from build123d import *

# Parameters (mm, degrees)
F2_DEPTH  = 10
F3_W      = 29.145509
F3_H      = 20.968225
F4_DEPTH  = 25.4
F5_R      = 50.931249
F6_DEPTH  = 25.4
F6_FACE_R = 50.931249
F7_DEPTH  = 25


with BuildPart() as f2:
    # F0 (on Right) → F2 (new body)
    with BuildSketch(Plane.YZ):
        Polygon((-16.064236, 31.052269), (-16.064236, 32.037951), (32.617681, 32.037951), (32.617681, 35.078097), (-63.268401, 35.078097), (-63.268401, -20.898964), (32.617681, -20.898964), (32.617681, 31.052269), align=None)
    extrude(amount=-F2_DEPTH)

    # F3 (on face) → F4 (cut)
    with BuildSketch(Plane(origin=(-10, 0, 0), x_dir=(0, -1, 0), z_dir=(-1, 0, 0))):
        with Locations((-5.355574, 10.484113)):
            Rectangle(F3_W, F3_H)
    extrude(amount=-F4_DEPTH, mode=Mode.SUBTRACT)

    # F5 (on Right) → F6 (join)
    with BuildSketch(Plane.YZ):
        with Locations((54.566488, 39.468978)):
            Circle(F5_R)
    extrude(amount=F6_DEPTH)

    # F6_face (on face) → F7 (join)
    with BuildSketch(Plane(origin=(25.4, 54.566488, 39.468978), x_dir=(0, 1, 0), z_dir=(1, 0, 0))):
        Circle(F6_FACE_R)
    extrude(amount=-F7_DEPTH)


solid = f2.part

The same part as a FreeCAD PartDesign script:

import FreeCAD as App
import Part
import Sketcher
Q = App.Units.Quantity

doc = App.newDocument("Part")
body = doc.addObject("PartDesign::Body", "Body")

# Sketch on YZ plane
sketch1 = body.newObject("Sketcher::SketchObject", "Sketch")
sketch1.AttachmentSupport = (doc.getObject("YZ_Plane"), [""])
sketch1.MapMode = "FlatFace"
sketch1.addGeometry([
    Part.LineSegment(App.Vector(-16.064236, 31.052269, 0), App.Vector(-16.064236, 32.037951, 0)),  # 0
    Part.LineSegment(App.Vector(-16.064236, 32.037951, 0), App.Vector(32.617681, 32.037951, 0)),  # 1
    Part.LineSegment(App.Vector(32.617681, 32.037951, 0), App.Vector(32.617681, 35.078097, 0)),  # 2
    Part.LineSegment(App.Vector(32.617681, 35.078097, 0), App.Vector(-63.268401, 35.078097, 0)),  # 3
    Part.LineSegment(App.Vector(-63.268401, 35.078097, 0), App.Vector(-63.268401, -20.898964, 0)),  # 4
    Part.LineSegment(App.Vector(-63.268401, -20.898964, 0), App.Vector(32.617681, -20.898964, 0)),  # 5
    Part.LineSegment(App.Vector(32.617681, -20.898964, 0), App.Vector(32.617681, 31.052269, 0)),  # 6
    Part.LineSegment(App.Vector(32.617681, 31.052269, 0), App.Vector(-16.064236, 31.052269, 0)),  # 7
], False)
sketch1.addConstraint([
    Sketcher.Constraint("Coincident", 0, 2, 1, 1),
    Sketcher.Constraint("Coincident", 1, 2, 2, 1),
    Sketcher.Constraint("Coincident", 2, 2, 3, 1),
    Sketcher.Constraint("Coincident", 3, 2, 4, 1),
    Sketcher.Constraint("Coincident", 4, 2, 5, 1),
    Sketcher.Constraint("Coincident", 5, 2, 6, 1),
    Sketcher.Constraint("Coincident", 6, 2, 7, 1),
    Sketcher.Constraint("Coincident", 7, 2, 0, 1),
    Sketcher.Constraint("Vertical", 0),
    Sketcher.Constraint("Horizontal", 1),
    Sketcher.Constraint("Vertical", 2),
    Sketcher.Constraint("Horizontal", 3),
    Sketcher.Constraint("Vertical", 4),
    Sketcher.Constraint("Horizontal", 5),
    Sketcher.Constraint("Vertical", 6),
    Sketcher.Constraint("Horizontal", 7),
    Sketcher.Constraint("Vertical", 2, 2, 5, 2),
    Sketcher.Constraint("DistanceX", 3, 2, 3, 1, Q("95.886082 mm")),
    Sketcher.Constraint("DistanceY", 4, 2, 4, 1, Q("55.977061 mm")),
    Sketcher.Constraint("DistanceX", 3, 2, -1, 1, Q("63.268401 mm")),
    Sketcher.Constraint("DistanceX", 1, 1, 1, 2, Q("48.681917 mm")),
    Sketcher.Constraint("DistanceY", 0, 1, 0, 2, Q("0.985682 mm")),
    Sketcher.Constraint("DistanceY", 2, 1, 2, 2, Q("3.040146 mm")),
    Sketcher.Constraint("DistanceY", -1, 1, 0, 2, Q("32.037951 mm")),
])
pad1 = body.newObject("PartDesign::Pad", "Pad")
pad1.Profile = sketch1
pad1.Length = 10
pad1.Reversed = True

# Sketch on YZ plane
sketch2 = body.newObject("Sketcher::SketchObject", "Sketch001")
sketch2.AttachmentSupport = (doc.getObject("YZ_Plane"), [""])
sketch2.MapMode = "FlatFace"
sketch2.AttachmentOffset = App.Placement(App.Vector(0, 0, -10), App.Rotation())
sketch2.addGeometry([
    Part.LineSegment(App.Vector(19.928328, 20.968225, 0), App.Vector(19.928328, 0, 0)),
    Part.LineSegment(App.Vector(19.928328, 0, 0), App.Vector(-9.21718, 0, 0)),
    Part.LineSegment(App.Vector(-9.21718, 0, 0), App.Vector(-9.21718, 20.968225, 0)),
    Part.LineSegment(App.Vector(-9.21718, 20.968225, 0), App.Vector(19.928328, 20.968225, 0)),
], False)
sketch2.addConstraint([
    Sketcher.Constraint("Coincident", 0, 2, 1, 1),
    Sketcher.Constraint("Coincident", 1, 2, 2, 1),
    Sketcher.Constraint("Coincident", 2, 2, 3, 1),
    Sketcher.Constraint("Coincident", 3, 2, 0, 1),
    Sketcher.Constraint("Vertical", 0),
    Sketcher.Constraint("Horizontal", 1),
    Sketcher.Constraint("Vertical", 2),
    Sketcher.Constraint("Horizontal", 3),
    Sketcher.Constraint("PointOnObject", 0, 2, -1),
    Sketcher.Constraint("DistanceX", 1, 2, 1, 1, Q("29.145509 mm")),
    Sketcher.Constraint("DistanceY", 0, 2, 0, 1, Q("20.968225 mm")),
    Sketcher.Constraint("DistanceX", -1, 1, 0, 2, Q("19.928328 mm")),
])
pocket1 = body.newObject("PartDesign::Pocket", "Pocket")
pocket1.Profile = sketch2
pocket1.Length = 25.4
pocket1.Reversed = True

# Sketch on YZ plane
sketch3 = body.newObject("Sketcher::SketchObject", "Sketch002")
sketch3.AttachmentSupport = (doc.getObject("YZ_Plane"), [""])
sketch3.MapMode = "FlatFace"
sketch3.addGeometry(Part.Circle(App.Vector(54.566488, 39.468978, 0), App.Vector(0, 0, 1), 50.931249), False)
sketch3.addConstraint([
    Sketcher.Constraint("Diameter", 0, Q("101.862498 mm")),
    Sketcher.Constraint("DistanceX", -1, 1, 0, 3, Q("54.566488 mm")),
    Sketcher.Constraint("DistanceY", -1, 1, 0, 3, Q("39.468978 mm")),
])
pad2 = body.newObject("PartDesign::Pad", "Pad001")
pad2.Profile = sketch3
pad2.Length = 25.4

# Sketch on YZ plane
sketch4 = body.newObject("Sketcher::SketchObject", "Sketch003")
sketch4.AttachmentSupport = (doc.getObject("YZ_Plane"), [""])
sketch4.MapMode = "FlatFace"
sketch4.AttachmentOffset = App.Placement(App.Vector(0, 0, 25.4), App.Rotation())
sketch4.addGeometry(Part.Circle(App.Vector(54.566488, 39.468978, 0), App.Vector(0, 0, 1), 50.931249), False)
sketch4.addConstraint([
    Sketcher.Constraint("Diameter", 0, Q("101.862498 mm")),
    Sketcher.Constraint("DistanceX", -1, 1, 0, 3, Q("54.566488 mm")),
    Sketcher.Constraint("DistanceY", -1, 1, 0, 3, Q("39.468978 mm")),
])
pad3 = body.newObject("PartDesign::Pad", "Pad002")
pad3.Profile = sketch4
pad3.Length = 25
pad3.Reversed = True

doc.recompute()
